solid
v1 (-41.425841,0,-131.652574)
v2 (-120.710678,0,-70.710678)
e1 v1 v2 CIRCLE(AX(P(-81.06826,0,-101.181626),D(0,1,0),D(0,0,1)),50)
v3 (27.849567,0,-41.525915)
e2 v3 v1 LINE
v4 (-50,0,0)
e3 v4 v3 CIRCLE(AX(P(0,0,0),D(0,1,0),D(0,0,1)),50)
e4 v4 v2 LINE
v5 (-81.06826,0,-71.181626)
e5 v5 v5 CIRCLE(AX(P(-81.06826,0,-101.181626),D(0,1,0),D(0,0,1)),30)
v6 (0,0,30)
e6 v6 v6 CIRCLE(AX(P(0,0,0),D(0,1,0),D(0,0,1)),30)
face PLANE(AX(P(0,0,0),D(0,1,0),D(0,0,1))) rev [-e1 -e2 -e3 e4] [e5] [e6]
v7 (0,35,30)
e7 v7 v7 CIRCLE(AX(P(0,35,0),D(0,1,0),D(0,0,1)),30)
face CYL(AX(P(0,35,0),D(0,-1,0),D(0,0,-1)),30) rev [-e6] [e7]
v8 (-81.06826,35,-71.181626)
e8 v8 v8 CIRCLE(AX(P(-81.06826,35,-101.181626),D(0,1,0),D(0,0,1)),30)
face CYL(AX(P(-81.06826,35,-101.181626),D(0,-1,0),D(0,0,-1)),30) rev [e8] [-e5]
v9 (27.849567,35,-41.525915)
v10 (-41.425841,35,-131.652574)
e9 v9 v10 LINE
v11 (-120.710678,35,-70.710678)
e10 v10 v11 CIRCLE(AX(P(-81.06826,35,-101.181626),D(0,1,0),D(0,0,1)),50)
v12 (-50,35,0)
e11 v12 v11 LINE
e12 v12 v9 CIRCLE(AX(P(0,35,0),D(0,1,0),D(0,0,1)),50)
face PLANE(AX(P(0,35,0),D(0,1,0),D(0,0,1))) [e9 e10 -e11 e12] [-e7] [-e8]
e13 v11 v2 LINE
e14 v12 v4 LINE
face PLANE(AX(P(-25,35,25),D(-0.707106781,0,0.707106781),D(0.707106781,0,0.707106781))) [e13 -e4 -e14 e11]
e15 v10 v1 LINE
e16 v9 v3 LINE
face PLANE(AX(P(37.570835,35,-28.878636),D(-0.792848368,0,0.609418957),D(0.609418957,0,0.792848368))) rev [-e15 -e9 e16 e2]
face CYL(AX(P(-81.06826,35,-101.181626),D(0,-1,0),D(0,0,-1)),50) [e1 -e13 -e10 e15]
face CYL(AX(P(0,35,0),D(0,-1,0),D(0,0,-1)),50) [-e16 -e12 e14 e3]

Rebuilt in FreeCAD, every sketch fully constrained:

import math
import FreeCAD as App
import Part
import Sketcher
Q = App.Units.Quantity

doc = App.newDocument("Part")
body = doc.addObject("PartDesign::Body", "Body")

# Sketch on XZ plane
sketch1 = body.newObject("Sketcher::SketchObject", "Sketch")
sketch1.AttachmentSupport = (doc.getObject("XZ_Plane"), [""])
sketch1.MapMode = "FlatFace"
sketch1.addGeometry([
    Part.ArcOfCircle(Part.Circle(App.Vector(0, 0, 0), App.Vector(0, 0, 1), 50), math.radians(-56), math.radians(180)),  # 0
    Part.LineSegment(App.Vector(28, -42, 0), App.Vector(-41, -132, 0)),  # 1
    Part.ArcOfCircle(Part.Circle(App.Vector(-81, -101, 0), App.Vector(0, 0, 1), 50), math.radians(142), math.radians(322)),  # 2
    Part.LineSegment(App.Vector(-121, -71, 0), App.Vector(-50, 0, 0)),  # 3
    Part.Circle(App.Vector(0, 0, 0), App.Vector(0, 0, 1), 30),  # 4
    Part.Circle(App.Vector(-81, -101, 0), App.Vector(0, 0, 1), 30),  # 5
], False)
sketch1.addConstraint([
    Sketcher.Constraint("Coincident", 0, 1, 1, 1),
    Sketcher.Constraint("Tangent", 1, 2, 2, 2),
    Sketcher.Constraint("Coincident", 2, 1, 3, 1),
    Sketcher.Constraint("Coincident", 3, 2, 0, 2),
    Sketcher.Constraint("Coincident", 0, 3, -1, 1),
    Sketcher.Constraint("Coincident", 4, 3, -1, 1),
    Sketcher.Constraint("Coincident", 5, 3, 2, 3),
    Sketcher.Constraint("Equal", 0, 2),
    Sketcher.Constraint("Equal", 4, 5),
    Sketcher.Constraint("PointOnObject", 3, 2, -1),
    Sketcher.Constraint("Diameter", 4, Q("60 mm")),
    Sketcher.Constraint("Radius", 0, Q("50 mm")),
    Sketcher.Constraint("Angle", 3, Q("45 deg")),
    Sketcher.Constraint("Distance", 3, Q("100 mm")),
    Sketcher.Constraint("Distance", 1, Q("113.674521 mm")),
    Sketcher.Constraint("DistanceX", 2, 3, -1, 1, Q("81.06826 mm")),
])
pad1 = body.newObject("PartDesign::Pad", "Pad")
pad1.Profile = sketch1
pad1.Length = 35
pad1.Reversed = True

doc.recompute()
